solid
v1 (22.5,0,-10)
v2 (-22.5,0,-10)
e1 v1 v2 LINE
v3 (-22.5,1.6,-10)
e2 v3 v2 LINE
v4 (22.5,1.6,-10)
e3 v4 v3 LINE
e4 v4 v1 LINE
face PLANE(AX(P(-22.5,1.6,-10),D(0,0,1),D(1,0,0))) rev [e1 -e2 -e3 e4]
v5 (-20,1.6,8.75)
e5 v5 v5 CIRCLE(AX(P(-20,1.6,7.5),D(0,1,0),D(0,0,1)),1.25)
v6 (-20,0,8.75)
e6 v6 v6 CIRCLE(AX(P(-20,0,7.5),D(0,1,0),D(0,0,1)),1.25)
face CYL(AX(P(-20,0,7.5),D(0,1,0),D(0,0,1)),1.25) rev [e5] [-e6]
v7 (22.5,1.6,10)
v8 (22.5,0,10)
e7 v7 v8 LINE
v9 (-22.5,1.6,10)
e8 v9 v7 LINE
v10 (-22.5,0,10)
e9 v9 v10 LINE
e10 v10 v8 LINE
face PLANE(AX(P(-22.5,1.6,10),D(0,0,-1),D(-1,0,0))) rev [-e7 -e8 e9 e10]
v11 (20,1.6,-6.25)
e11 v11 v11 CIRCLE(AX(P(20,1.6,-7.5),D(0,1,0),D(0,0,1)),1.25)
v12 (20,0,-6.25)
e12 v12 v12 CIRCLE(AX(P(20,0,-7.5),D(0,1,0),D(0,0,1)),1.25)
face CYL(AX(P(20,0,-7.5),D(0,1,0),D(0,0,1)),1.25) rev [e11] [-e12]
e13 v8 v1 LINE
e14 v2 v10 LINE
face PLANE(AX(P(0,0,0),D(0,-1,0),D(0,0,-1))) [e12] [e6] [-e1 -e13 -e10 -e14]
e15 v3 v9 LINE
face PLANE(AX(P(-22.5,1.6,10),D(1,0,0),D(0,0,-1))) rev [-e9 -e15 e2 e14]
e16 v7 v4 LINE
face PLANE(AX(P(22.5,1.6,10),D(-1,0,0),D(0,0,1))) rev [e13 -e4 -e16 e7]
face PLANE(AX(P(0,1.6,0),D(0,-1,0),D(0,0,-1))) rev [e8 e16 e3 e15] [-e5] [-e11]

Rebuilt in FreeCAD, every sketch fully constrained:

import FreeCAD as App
import Part
import Sketcher
from FreeCAD import Vector


def add_polygon(sketch, points):
    """Adds a closed chain of lines whose ends are joined by coincident constraints."""
    first, n = sketch.GeometryCount, len(points)
    for a, b in zip(points, points[1:] + points[:1]):
        sketch.addGeometry(Part.LineSegment(App.Vector(*a, 0), App.Vector(*b, 0)), False)
    for i in range(n):
        sketch.addConstraint(Sketcher.Constraint("Coincident", first + i, 2, first + (i + 1) % n, 1))

doc = App.newDocument("Part")
body = doc.addObject("PartDesign::Body", "Body")

# Sketch on XZ plane
sketch1 = body.newObject("Sketcher::SketchObject", "Sketch")
sketch1.AttachmentSupport = (doc.getObject("XZ_Plane"), [""])
sketch1.MapMode = "FlatFace"
add_polygon(sketch1, [(-22.5, -10), (-22.5, 10), (22.5, 10), (22.5, -10)])  # lines 0-3
sketch1.addConstraint([
    Sketcher.Constraint("Vertical", 0),
    Sketcher.Constraint("Horizontal", 1),
    Sketcher.Constraint("Vertical", 2),
    Sketcher.Constraint("Horizontal", 3),
    Sketcher.Constraint("Symmetric", 0, 2, 2, 2, -1, 1),
    Sketcher.Constraint("DistanceX", 1, 1, 1, 2, 45.0),
    Sketcher.Constraint("DistanceY", 0, 1, 0, 2, 20.0),
])
pad1 = body.newObject("PartDesign::Pad", "Pad")
pad1.Profile = sketch1
pad1.Length = 1.6
pad1.Reversed = True

# Sketch on XZ plane
sketch2 = body.newObject("Sketcher::SketchObject", "Sketch001")
sketch2.AttachmentSupport = (doc.getObject("XZ_Plane"), [""])
sketch2.MapMode = "FlatFace"
sketch2.AttachmentOffset = App.Placement(Vector(0, 0, -1.6), App.Rotation())
sketch2.addGeometry([
    Part.Circle(Vector(-20, 7.5, 0), Vector(0, 0, 1), 1.25),
    Part.Circle(Vector(20, -7.5, 0), Vector(0, 0, 1), 1.25),
], False)
sketch2.addConstraint([
    Sketcher.Constraint("Equal", 0, 1),
    Sketcher.Constraint("Symmetric", 0, 3, 1, 3, -1, 1),
    Sketcher.Constraint("Diameter", 0, 2.5),
    Sketcher.Constraint("DistanceX", 0, 3, -1, 1, 20.0),
    Sketcher.Constraint("DistanceY", 1, 3, 0, 3, 15.0),
])
pocket1 = body.newObject("PartDesign::Pocket", "Pocket")
pocket1.Profile = sketch2
pocket1.Type = "ThroughAll"
pocket1.Reversed = True

doc.recompute()
